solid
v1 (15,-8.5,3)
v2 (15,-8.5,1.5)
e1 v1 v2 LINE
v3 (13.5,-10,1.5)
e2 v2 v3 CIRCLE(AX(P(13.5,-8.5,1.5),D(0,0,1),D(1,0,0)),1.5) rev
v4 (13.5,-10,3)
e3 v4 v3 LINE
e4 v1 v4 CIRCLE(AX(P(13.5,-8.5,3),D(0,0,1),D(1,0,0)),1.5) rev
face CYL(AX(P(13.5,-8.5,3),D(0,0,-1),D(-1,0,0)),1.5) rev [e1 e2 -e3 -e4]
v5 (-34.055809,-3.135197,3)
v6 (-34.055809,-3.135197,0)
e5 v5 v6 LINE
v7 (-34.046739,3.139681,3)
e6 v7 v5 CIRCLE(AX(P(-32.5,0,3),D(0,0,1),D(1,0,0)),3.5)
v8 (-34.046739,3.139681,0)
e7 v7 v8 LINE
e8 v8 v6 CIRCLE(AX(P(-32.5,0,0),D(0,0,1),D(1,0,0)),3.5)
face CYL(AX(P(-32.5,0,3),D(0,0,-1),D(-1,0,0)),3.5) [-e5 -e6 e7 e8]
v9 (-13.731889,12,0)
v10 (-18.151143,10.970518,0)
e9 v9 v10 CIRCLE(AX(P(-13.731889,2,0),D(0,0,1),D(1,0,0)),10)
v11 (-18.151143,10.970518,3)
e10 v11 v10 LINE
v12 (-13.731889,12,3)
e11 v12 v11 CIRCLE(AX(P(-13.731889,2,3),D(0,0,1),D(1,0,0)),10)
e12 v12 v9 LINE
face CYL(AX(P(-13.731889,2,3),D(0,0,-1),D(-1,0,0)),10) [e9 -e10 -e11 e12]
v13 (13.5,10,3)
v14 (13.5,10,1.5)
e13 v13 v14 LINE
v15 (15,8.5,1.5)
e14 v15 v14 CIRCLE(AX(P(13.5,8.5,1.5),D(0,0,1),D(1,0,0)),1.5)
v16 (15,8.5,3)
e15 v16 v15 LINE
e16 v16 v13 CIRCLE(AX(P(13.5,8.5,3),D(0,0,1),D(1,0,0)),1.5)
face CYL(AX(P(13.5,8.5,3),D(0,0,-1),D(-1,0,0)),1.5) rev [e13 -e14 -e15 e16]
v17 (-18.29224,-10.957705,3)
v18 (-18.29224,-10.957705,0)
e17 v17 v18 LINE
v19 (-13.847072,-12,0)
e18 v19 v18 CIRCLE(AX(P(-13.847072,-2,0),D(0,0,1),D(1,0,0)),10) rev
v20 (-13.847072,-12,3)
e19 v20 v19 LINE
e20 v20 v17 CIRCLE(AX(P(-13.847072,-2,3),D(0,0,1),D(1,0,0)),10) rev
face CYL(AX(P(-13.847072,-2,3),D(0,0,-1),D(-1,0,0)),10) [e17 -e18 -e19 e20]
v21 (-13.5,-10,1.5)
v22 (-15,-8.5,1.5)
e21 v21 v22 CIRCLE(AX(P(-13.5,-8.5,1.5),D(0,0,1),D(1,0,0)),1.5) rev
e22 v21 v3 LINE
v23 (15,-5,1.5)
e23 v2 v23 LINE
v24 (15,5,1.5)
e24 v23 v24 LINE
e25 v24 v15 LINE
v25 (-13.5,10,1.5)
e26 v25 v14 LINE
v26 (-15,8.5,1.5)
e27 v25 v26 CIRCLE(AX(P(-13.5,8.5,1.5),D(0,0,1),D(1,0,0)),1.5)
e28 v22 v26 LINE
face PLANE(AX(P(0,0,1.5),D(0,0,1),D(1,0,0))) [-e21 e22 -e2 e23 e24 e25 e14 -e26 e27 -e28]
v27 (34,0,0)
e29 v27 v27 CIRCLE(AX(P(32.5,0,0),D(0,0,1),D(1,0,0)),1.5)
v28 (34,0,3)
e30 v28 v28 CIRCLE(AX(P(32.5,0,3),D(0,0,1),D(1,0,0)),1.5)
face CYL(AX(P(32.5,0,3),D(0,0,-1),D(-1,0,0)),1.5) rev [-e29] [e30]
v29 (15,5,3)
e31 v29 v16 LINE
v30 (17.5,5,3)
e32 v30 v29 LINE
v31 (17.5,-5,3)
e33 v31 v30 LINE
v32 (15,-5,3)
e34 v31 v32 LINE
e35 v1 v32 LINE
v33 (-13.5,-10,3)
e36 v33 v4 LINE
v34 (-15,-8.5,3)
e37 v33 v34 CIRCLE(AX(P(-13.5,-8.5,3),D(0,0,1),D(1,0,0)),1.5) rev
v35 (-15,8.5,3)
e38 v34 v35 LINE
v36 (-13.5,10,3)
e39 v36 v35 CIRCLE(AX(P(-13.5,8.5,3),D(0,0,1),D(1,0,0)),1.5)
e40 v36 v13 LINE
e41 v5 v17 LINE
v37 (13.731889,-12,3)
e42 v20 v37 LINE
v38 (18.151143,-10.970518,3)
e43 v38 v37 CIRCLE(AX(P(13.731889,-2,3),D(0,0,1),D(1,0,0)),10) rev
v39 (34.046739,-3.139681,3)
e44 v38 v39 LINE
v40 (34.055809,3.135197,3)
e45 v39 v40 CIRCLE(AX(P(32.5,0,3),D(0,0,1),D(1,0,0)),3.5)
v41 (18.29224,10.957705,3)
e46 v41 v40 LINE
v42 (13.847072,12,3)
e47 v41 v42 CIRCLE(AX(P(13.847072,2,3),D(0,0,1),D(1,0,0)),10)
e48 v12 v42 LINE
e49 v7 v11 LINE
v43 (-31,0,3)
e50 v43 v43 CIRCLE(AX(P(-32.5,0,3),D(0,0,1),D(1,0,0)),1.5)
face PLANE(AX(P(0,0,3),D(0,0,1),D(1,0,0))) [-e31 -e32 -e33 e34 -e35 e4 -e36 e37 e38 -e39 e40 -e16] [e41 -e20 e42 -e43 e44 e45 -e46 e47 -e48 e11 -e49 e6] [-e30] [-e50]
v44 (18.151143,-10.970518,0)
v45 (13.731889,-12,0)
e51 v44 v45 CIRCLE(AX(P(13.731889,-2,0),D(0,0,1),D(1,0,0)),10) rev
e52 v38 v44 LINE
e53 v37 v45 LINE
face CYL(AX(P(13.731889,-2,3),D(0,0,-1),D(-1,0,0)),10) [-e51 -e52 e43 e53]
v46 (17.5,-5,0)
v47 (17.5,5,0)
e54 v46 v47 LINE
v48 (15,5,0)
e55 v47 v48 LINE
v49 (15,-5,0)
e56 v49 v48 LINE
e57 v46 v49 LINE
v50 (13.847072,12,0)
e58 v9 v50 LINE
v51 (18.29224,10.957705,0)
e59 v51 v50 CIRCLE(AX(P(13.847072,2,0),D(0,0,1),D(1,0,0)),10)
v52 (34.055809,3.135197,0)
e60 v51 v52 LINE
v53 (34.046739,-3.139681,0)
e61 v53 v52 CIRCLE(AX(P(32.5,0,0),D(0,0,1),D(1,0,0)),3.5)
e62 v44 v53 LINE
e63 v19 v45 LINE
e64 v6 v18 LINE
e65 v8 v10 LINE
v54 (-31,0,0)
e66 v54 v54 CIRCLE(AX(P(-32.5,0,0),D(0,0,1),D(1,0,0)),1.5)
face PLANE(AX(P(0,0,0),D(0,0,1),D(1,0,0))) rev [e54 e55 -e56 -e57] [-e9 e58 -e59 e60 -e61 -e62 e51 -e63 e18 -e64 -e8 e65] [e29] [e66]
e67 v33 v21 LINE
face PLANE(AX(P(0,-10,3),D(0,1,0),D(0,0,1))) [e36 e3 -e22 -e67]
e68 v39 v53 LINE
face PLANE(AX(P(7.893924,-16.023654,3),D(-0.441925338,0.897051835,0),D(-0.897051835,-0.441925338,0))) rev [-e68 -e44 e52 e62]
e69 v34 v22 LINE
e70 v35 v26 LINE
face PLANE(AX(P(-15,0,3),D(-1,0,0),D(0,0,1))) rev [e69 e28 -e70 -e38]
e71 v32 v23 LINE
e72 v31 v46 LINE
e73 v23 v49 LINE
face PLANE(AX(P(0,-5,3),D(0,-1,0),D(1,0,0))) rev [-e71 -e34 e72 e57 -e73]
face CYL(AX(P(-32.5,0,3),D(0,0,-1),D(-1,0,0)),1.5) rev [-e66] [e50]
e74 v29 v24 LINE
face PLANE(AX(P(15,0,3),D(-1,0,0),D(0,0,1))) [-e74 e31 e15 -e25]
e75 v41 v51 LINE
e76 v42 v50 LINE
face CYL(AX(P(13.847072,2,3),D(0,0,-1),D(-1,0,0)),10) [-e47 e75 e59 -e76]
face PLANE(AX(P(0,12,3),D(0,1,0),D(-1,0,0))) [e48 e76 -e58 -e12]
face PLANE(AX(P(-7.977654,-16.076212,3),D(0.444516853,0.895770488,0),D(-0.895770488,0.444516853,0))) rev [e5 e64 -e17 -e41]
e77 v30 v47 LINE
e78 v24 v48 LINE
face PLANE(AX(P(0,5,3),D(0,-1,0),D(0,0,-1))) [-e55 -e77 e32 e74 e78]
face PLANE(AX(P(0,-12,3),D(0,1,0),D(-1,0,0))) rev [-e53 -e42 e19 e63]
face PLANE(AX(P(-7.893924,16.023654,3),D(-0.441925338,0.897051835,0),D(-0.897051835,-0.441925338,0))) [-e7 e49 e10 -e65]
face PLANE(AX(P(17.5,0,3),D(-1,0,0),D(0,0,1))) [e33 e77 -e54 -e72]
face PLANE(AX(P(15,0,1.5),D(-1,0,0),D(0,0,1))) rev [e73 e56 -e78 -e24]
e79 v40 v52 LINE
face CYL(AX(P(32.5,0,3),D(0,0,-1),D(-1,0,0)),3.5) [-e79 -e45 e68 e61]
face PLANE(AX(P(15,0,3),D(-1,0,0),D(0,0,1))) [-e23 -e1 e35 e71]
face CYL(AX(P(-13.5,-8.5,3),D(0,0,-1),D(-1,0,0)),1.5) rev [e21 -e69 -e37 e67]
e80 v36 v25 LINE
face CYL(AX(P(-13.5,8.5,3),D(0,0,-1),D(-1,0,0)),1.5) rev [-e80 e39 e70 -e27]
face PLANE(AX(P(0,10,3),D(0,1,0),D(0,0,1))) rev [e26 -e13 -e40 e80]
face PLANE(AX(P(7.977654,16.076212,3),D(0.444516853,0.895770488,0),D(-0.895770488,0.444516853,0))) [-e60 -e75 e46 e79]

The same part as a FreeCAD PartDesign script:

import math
import FreeCAD as App
import Part
import Sketcher
Q = App.Units.Quantity

doc = App.newDocument("Part")
body = doc.addObject("PartDesign::Body", "Body")

sketch1 = body.newObject("Sketcher::SketchObject", "Sketch")
sketch1.AttachmentSupport = (doc.getObject("XY_Plane"), [""])
sketch1.MapMode = "FlatFace"
sketch1.addGeometry(Part.LineSegment(App.Vector(-18.2, 11, 0), App.Vector(-34, 3.1, 0)), False)
sketch1.addGeometry(Part.ArcOfCircle(Part.Circle(App.Vector(-32.5, 0, 0), App.Vector(0, 0, 1), 3.5), math.radians(116), math.radians(244)), False)
sketch1.addGeometry(Part.LineSegment(App.Vector(-34.1, -3.1, 0), App.Vector(-18.3, -11, 0)), False)
sketch1.addGeometry(Part.ArcOfCircle(Part.Circle(App.Vector(-13.8, -2, 0), App.Vector(0, 0, 1), 10), math.radians(-116), math.radians(-90)), False)
sketch1.addGeometry(Part.LineSegment(App.Vector(-13.8, -12, 0), App.Vector(13.7, -12, 0)), False)
sketch1.addGeometry(Part.ArcOfCircle(Part.Circle(App.Vector(13.7, -2, 0), App.Vector(0, 0, 1), 10), math.radians(-90), math.radians(-64)), False)
sketch1.addGeometry(Part.LineSegment(App.Vector(18.2, -11, 0), App.Vector(34, -3.1, 0)), False)
sketch1.addGeometry(Part.ArcOfCircle(Part.Circle(App.Vector(32.5, 0, 0), App.Vector(0, 0, 1), 3.5), math.radians(-64), math.radians(64)), False)
sketch1.addGeometry(Part.LineSegment(App.Vector(34.1, 3.1, 0), App.Vector(18.3, 11, 0)), False)
sketch1.addGeometry(Part.ArcOfCircle(Part.Circle(App.Vector(13.8, 2, 0), App.Vector(0, 0, 1), 10), math.radians(64), math.radians(90)), False)
sketch1.addGeometry(Part.LineSegment(App.Vector(13.8, 12, 0), App.Vector(-13.7, 12, 0)), False)
sketch1.addGeometry(Part.ArcOfCircle(Part.Circle(App.Vector(-13.7, 2, 0), App.Vector(0, 0, 1), 10), math.radians(90), math.radians(116)), False)
sketch1.addGeometry(Part.Circle(App.Vector(-32.5, 0, 0), App.Vector(0, 0, 1), 1.5), False)
sketch1.addGeometry(Part.ArcOfCircle(Part.Circle(App.Vector(13.5, -8.5, 0), App.Vector(0, 0, 1), 1.5), math.radians(-90), math.radians(0)), False)
sketch1.addGeometry(Part.LineSegment(App.Vector(13.5, -10, 0), App.Vector(-13.5, -10, 0)), False)
sketch1.addGeometry(Part.ArcOfCircle(Part.Circle(App.Vector(-13.5, -8.5, 0), App.Vector(0, 0, 1), 1.5), math.radians(180), math.radians(270)), False)
sketch1.addGeometry(Part.LineSegment(App.Vector(-15, -8.5, 0), App.Vector(-15, 8.5, 0)), False)
sketch1.addGeometry(Part.ArcOfCircle(Part.Circle(App.Vector(-13.5, 8.5, 0), App.Vector(0, 0, 1), 1.5), math.radians(90), math.radians(180)), False)
sketch1.addGeometry(Part.LineSegment(App.Vector(-13.5, 10, 0), App.Vector(13.5, 10, 0)), False)
sketch1.addGeometry(Part.ArcOfCircle(Part.Circle(App.Vector(13.5, 8.5, 0), App.Vector(0, 0, 1), 1.5), math.radians(0), math.radians(90)), False)
sketch1.addGeometry(Part.LineSegment(App.Vector(15, 8.5, 0), App.Vector(15, 5, 0)), False)
sketch1.addGeometry(Part.LineSegment(App.Vector(15, 5, 0), App.Vector(17.5, 5, 0)), False)
sketch1.addGeometry(Part.LineSegment(App.Vector(17.5, 5, 0), App.Vector(17.5, -5, 0)), False)
sketch1.addGeometry(Part.LineSegment(App.Vector(17.5, -5, 0), App.Vector(15, -5, 0)), False)
sketch1.addGeometry(Part.LineSegment(App.Vector(15, -5, 0), App.Vector(15, -8.5, 0)), False)
sketch1.addGeometry(Part.Circle(App.Vector(32.5, 0, 0), App.Vector(0, 0, 1), 1.5), False)
sketch1.addConstraint(Sketcher.Constraint("Tangent", 0, 2, 1, 1))
sketch1.addConstraint(Sketcher.Constraint("Tangent", 1, 2, 2, 1))
sketch1.addConstraint(Sketcher.Constraint("Tangent", 2, 2, 3, 1))
sketch1.addConstraint(Sketcher.Constraint("Tangent", 3, 2, 4, 1))
sketch1.addConstraint(Sketcher.Constraint("Tangent", 4, 2, 5, 1))
sketch1.addConstraint(Sketcher.Constraint("Tangent", 5, 2, 6, 1))
sketch1.addConstraint(Sketcher.Constraint("Tangent", 6, 2, 7, 1))
sketch1.addConstraint(Sketcher.Constraint("Tangent", 7, 2, 8, 1))
sketch1.addConstraint(Sketcher.Constraint("Tangent", 8, 2, 9, 1))
sketch1.addConstraint(Sketcher.Constraint("Tangent", 9, 2, 10, 1))
sketch1.addConstraint(Sketcher.Constraint("Tangent", 10, 2, 11, 1))
sketch1.addConstraint(Sketcher.Constraint("Tangent", 11, 2, 0, 1))
sketch1.addConstraint(Sketcher.Constraint("Tangent", 13, 1, 14, 1))
sketch1.addConstraint(Sketcher.Constraint("Tangent", 14, 2, 15, 2))
sketch1.addConstraint(Sketcher.Constraint("Tangent", 15, 1, 16, 1))
sketch1.addConstraint(Sketcher.Constraint("Tangent", 16, 2, 17, 2))
sketch1.addConstraint(Sketcher.Constraint("Tangent", 17, 1, 18, 1))
sketch1.addConstraint(Sketcher.Constraint("Tangent", 18, 2, 19, 2))
sketch1.addConstraint(Sketcher.Constraint("Tangent", 19, 1, 20, 1))
sketch1.addConstraint(Sketcher.Constraint("Coincident", 20, 2, 21, 1))
sketch1.addConstraint(Sketcher.Constraint("Coincident", 21, 2, 22, 1))
sketch1.addConstraint(Sketcher.Constraint("Coincident", 22, 2, 23, 1))
sketch1.addConstraint(Sketcher.Constraint("Coincident", 23, 2, 24, 1))
sketch1.addConstraint(Sketcher.Constraint("Tangent", 24, 2, 13, 2))
sketch1.addConstraint(Sketcher.Constraint("Horizontal", 4))
sketch1.addConstraint(Sketcher.Constraint("Horizontal", 10))
sketch1.addConstraint(Sketcher.Constraint("Horizontal", 14))
sketch1.addConstraint(Sketcher.Constraint("Vertical", 16))
sketch1.addConstraint(Sketcher.Constraint("Horizontal", 18))
sketch1.addConstraint(Sketcher.Constraint("Vertical", 20))
sketch1.addConstraint(Sketcher.Constraint("Horizontal", 21))
sketch1.addConstraint(Sketcher.Constraint("Vertical", 22))
sketch1.addConstraint(Sketcher.Constraint("Horizontal", 23))
sketch1.addConstraint(Sketcher.Constraint("Vertical", 24))
sketch1.addConstraint(Sketcher.Constraint("Coincident", 12, 3, 1, 3))
sketch1.addConstraint(Sketcher.Constraint("Coincident", 25, 3, 7, 3))
sketch1.addConstraint(Sketcher.Constraint("Equal", 3, 5))
sketch1.addConstraint(Sketcher.Constraint("Equal", 1, 7))
sketch1.addConstraint(Sketcher.Constraint("Equal", 5, 9))
sketch1.addConstraint(Sketcher.Constraint("Equal", 9, 11))
sketch1.addConstraint(Sketcher.Constraint("Equal", 12, 13))
sketch1.addConstraint(Sketcher.Constraint("Equal", 13, 15))
sketch1.addConstraint(Sketcher.Constraint("Equal", 15, 17))
sketch1.addConstraint(Sketcher.Constraint("Equal", 17, 19))
sketch1.addConstraint(Sketcher.Constraint("Equal", 19, 25))
sketch1.addConstraint(Sketcher.Constraint("Symmetric", 1, 3, 7, 3, -1, 1))
sketch1.addConstraint(Sketcher.Constraint("Symmetric", 3, 3, 9, 3, -1, 1))
sketch1.addConstraint(Sketcher.Constraint("Symmetric", 13, 3, 17, 3, -1, 1))
sketch1.addConstraint(Sketcher.Constraint("Symmetric", 20, 2, 23, 2, -1))
sketch1.addConstraint(Sketcher.Constraint("PointOnObject", 1, 3, -1))
sketch1.addConstraint(Sketcher.Constraint("Parallel", 0, 6))
sketch1.addConstraint(Sketcher.Constraint("Diameter", 12, Q("3 mm")))
sketch1.addConstraint(Sketcher.Constraint("Radius", 3, Q("10 mm")))
sketch1.addConstraint(Sketcher.Constraint("Radius", 1, Q("3.5 mm")))
sketch1.addConstraint(Sketcher.Constraint("DistanceX", 14, 2, 14, 1, Q("27 mm")))
sketch1.addConstraint(Sketcher.Constraint("DistanceY", 16, 1, 16, 2, Q("17 mm")))
sketch1.addConstraint(Sketcher.Constraint("DistanceY", 22, 2, 22, 1, Q("10 mm")))
sketch1.addConstraint(Sketcher.Constraint("DistanceX", 21, 1, 21, 2, Q("2.5 mm")))
sketch1.addConstraint(Sketcher.Constraint("DistanceY", 3, 3, -1, 1, Q("2 mm")))
sketch1.addConstraint(Sketcher.Constraint("DistanceX", 1, 3, 7, 3, Q("65 mm")))
sketch1.addConstraint(Sketcher.Constraint("DistanceX", 4, 1, 4, 2, Q("27.578961 mm")))
sketch1.addConstraint(Sketcher.Constraint("Distance", 0, Q("17.719819 mm")))
pad1 = body.newObject("PartDesign::Pad", "Pad")
pad1.Profile = sketch1
pad1.Length = 3

sketch2 = body.newObject("Sketcher::SketchObject", "Sketch001")
sketch2.AttachmentSupport = (doc.getObject("XY_Plane"), [""])
sketch2.MapMode = "FlatFace"
sketch2.addGeometry(Part.LineSegment(App.Vector(13.5, 10, 0), App.Vector(-13.5, 10, 0)), False)
sketch2.addGeometry(Part.ArcOfCircle(Part.Circle(App.Vector(-13.5, 8.5, 0), App.Vector(0, 0, 1), 1.5), math.radians(90), math.radians(180)), False)
sketch2.addGeometry(Part.LineSegment(App.Vector(-15, 8.5, 0), App.Vector(-15, -8.5, 0)), False)
sketch2.addGeometry(Part.ArcOfCircle(Part.Circle(App.Vector(-13.5, -8.5, 0), App.Vector(0, 0, 1), 1.5), math.radians(180), math.radians(270)), False)
sketch2.addGeometry(Part.LineSegment(App.Vector(-13.5, -10, 0), App.Vector(13.5, -10, 0)), False)
sketch2.addGeometry(Part.ArcOfCircle(Part.Circle(App.Vector(13.5, -8.5, 0), App.Vector(0, 0, 1), 1.5), math.radians(-90), math.radians(0)), False)
sketch2.addGeometry(Part.LineSegment(App.Vector(15, -8.5, 0), App.Vector(15, 8.5, 0)), False)
sketch2.addGeometry(Part.ArcOfCircle(Part.Circle(App.Vector(13.5, 8.5, 0), App.Vector(0, 0, 1), 1.5), math.radians(0), math.radians(90)), False)
sketch2.addConstraint(Sketcher.Constraint("Tangent", 0, 2, 1, 1))
sketch2.addConstraint(Sketcher.Constraint("Tangent", 1, 2, 2, 1))
sketch2.addConstraint(Sketcher.Constraint("Tangent", 2, 2, 3, 1))
sketch2.addConstraint(Sketcher.Constraint("Tangent", 3, 2, 4, 1))
sketch2.addConstraint(Sketcher.Constraint("Tangent", 4, 2, 5, 1))
sketch2.addConstraint(Sketcher.Constraint("Tangent", 5, 2, 6, 1))
sketch2.addConstraint(Sketcher.Constraint("Tangent", 6, 2, 7, 1))
sketch2.addConstraint(Sketcher.Constraint("Tangent", 7, 2, 0, 1))
sketch2.addConstraint(Sketcher.Constraint("Horizontal", 0))
sketch2.addConstraint(Sketcher.Constraint("Vertical", 2))
sketch2.addConstraint(Sketcher.Constraint("Horizontal", 4))
sketch2.addConstraint(Sketcher.Constraint("Vertical", 6))
sketch2.addConstraint(Sketcher.Constraint("Equal", 1, 3))
sketch2.addConstraint(Sketcher.Constraint("Equal", 3, 5))
sketch2.addConstraint(Sketcher.Constraint("Equal", 5, 7))
sketch2.addConstraint(Sketcher.Constraint("Symmetric", 1, 3, 5, 3, -1, 1))
sketch2.addConstraint(Sketcher.Constraint("Radius", 1, Q("1.5 mm")))
sketch2.addConstraint(Sketcher.Constraint("DistanceX", 0, 2, 0, 1, Q("27 mm")))
sketch2.addConstraint(Sketcher.Constraint("DistanceY", 2, 2, 2, 1, Q("17 mm")))
pad2 = body.newObject("PartDesign::Pad", "Pad001")
pad2.Profile = sketch2
pad2.Length = 1.5

doc.recompute()
